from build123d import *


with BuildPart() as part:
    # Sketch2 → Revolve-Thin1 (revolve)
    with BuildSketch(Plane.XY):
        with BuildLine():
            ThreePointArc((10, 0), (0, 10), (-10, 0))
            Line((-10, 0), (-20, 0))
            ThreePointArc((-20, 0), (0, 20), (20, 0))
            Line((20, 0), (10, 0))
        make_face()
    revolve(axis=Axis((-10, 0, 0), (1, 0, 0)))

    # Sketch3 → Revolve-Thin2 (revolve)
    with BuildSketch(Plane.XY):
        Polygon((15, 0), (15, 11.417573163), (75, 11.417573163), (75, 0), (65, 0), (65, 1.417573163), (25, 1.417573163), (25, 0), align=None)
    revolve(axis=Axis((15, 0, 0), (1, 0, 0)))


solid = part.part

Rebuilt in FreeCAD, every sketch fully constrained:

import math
import FreeCAD as App
import Part
import Sketcher


def add_polygon(sketch, points):
    """Adds a closed chain of lines whose ends are joined by coincident constraints."""
    first, n = sketch.GeometryCount, len(points)
    for a, b in zip(points, points[1:] + points[:1]):
        sketch.addGeometry(Part.LineSegment(App.Vector(*a, 0), App.Vector(*b, 0)), False)
    for i in range(n):
        sketch.addConstraint(Sketcher.Constraint("Coincident", first + i, 2, first + (i + 1) % n, 1))

doc = App.newDocument("Part")
body = doc.addObject("PartDesign::Body", "Body")

# Sketch on XY plane
sketch1 = body.newObject("Sketcher::SketchObject", "Sketch")
sketch1.AttachmentSupport = (doc.getObject("XY_Plane"), [""])
sketch1.MapMode = "FlatFace"
sketch1.addGeometry(Part.ArcOfCircle(Part.Circle(App.Vector(0, 0, 0), App.Vector(0, 0, 1), 10), math.radians(0), math.radians(180)), False)
sketch1.addGeometry(Part.LineSegment(App.Vector(10, 0, 0), App.Vector(20, 0, 0)), False)
sketch1.addGeometry(Part.ArcOfCircle(Part.Circle(App.Vector(0, 0, 0), App.Vector(0, 0, 1), 20), math.radians(0), math.radians(180)), False)
sketch1.addGeometry(Part.LineSegment(App.Vector(-20, 0, 0), App.Vector(-10, 0, 0)), False)
sketch1.addConstraint(Sketcher.Constraint("Coincident", 0, 1, 1, 1))
sketch1.addConstraint(Sketcher.Constraint("Coincident", 1, 2, 2, 1))
sketch1.addConstraint(Sketcher.Constraint("Coincident", 2, 2, 3, 1))
sketch1.addConstraint(Sketcher.Constraint("Coincident", 3, 2, 0, 2))
sketch1.addConstraint(Sketcher.Constraint("Horizontal", 1))
sketch1.addConstraint(Sketcher.Constraint("Horizontal", 3))
sketch1.addConstraint(Sketcher.Constraint("Coincident", 0, 3, -1, 1))
sketch1.addConstraint(Sketcher.Constraint("Coincident", 2, 3, -1, 1))
sketch1.addConstraint(Sketcher.Constraint("PointOnObject", 0, 1, -1))
sketch1.addConstraint(Sketcher.Constraint("PointOnObject", 2, 2, -1))
sketch1.addConstraint(Sketcher.Constraint("Radius", 0, 10.0))
sketch1.addConstraint(Sketcher.Constraint("Radius", 2, 20.0))
revolution = body.newObject("PartDesign::Revolution", "Revolution")
revolution.Profile = sketch1
revolution.ReferenceAxis = (sketch1, ["H_Axis"])
revolution.Angle = 360

# Sketch on XY plane
sketch2 = body.newObject("Sketcher::SketchObject", "Sketch001")
sketch2.AttachmentSupport = (doc.getObject("XY_Plane"), [""])
sketch2.MapMode = "FlatFace"
add_polygon(sketch2, [(15, 11.4), (15, 0), (25, 0), (25, 1.4), (65, 1.4), (65, 0), (75, 0), (75, 11.4)])  # lines 0-7
sketch2.addConstraint(Sketcher.Constraint("Vertical", 0))
sketch2.addConstraint(Sketcher.Constraint("Horizontal", 1))
sketch2.addConstraint(Sketcher.Constraint("Vertical", 2))
sketch2.addConstraint(Sketcher.Constraint("Horizontal", 3))
sketch2.addConstraint(Sketcher.Constraint("Vertical", 4))
sketch2.addConstraint(Sketcher.Constraint("Horizontal", 5))
sketch2.addConstraint(Sketcher.Constraint("Vertical", 6))
sketch2.addConstraint(Sketcher.Constraint("Horizontal", 7))
sketch2.addConstraint(Sketcher.Constraint("PointOnObject", 0, 2, -1))
sketch2.addConstraint(Sketcher.Constraint("PointOnObject", 4, 2, -1))
sketch2.addConstraint(Sketcher.Constraint("Equal", 1, 5))
sketch2.addConstraint(Sketcher.Constraint("DistanceX", 1, 1, 1, 2, 10.0))
sketch2.addConstraint(Sketcher.Constraint("DistanceX", 3, 1, 3, 2, 40.0))
sketch2.addConstraint(Sketcher.Constraint("DistanceX", -1, 1, 0, 2, 15.0))
sketch2.addConstraint(Sketcher.Constraint("DistanceY", 3, 2, 6, 2, 10.0))
sketch2.addConstraint(Sketcher.Constraint("DistanceY", 0, 2, 0, 1, 11.417573))
revolution2 = body.newObject("PartDesign::Revolution", "Revolution001")
revolution2.Profile = sketch2
revolution2.ReferenceAxis = (sketch2, ["H_Axis"])
revolution2.Angle = 360

doc.recompute()
